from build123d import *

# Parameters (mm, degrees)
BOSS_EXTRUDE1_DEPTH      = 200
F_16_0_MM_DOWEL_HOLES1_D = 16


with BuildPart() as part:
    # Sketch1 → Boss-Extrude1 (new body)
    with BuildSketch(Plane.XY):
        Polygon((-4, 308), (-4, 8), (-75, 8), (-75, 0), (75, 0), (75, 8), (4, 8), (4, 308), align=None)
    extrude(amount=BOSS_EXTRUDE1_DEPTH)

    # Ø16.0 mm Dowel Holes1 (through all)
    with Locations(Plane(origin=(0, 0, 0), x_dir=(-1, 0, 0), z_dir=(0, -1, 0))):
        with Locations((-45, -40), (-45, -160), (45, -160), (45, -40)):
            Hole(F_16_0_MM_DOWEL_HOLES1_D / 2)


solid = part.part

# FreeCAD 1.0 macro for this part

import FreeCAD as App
import Part
import Sketcher

V = App.Vector
Q = App.Units.Quantity

doc = App.newDocument("Part")
body = doc.addObject("PartDesign::Body", "Body")

sketch1 = body.newObject("Sketcher::SketchObject", "Sketch")
sketch1.AttachmentSupport = (doc.getObject("XY_Plane"), [""])
sketch1.MapMode = "FlatFace"
sketch1.addGeometry([
    Part.LineSegment(V(-4, 308, 0), V(-4, 8, 0)),
    Part.LineSegment(V(-4, 8, 0), V(-75, 8, 0)),
    Part.LineSegment(V(-75, 8, 0), V(-75, 0, 0)),
    Part.LineSegment(V(-75, 0, 0), V(75, 0, 0)),
    Part.LineSegment(V(75, 0, 0), V(75, 8, 0)),
    Part.LineSegment(V(75, 8, 0), V(4, 8, 0)),
    Part.LineSegment(V(4, 8, 0), V(4, 308, 0)),
    Part.LineSegment(V(4, 308, 0), V(-4, 308, 0)),
], False)
sketch1.addConstraint([
    Sketcher.Constraint("Coincident", 0, 2, 1, 1),
    Sketcher.Constraint("Coincident", 1, 2, 2, 1),
    Sketcher.Constraint("Coincident", 2, 2, 3, 1),
    Sketcher.Constraint("Coincident", 3, 2, 4, 1),
    Sketcher.Constraint("Coincident", 4, 2, 5, 1),
    Sketcher.Constraint("Coincident", 5, 2, 6, 1),
    Sketcher.Constraint("Coincident", 6, 2, 7, 1),
    Sketcher.Constraint("Coincident", 7, 2, 0, 1),
    Sketcher.Constraint("Vertical", 0),
    Sketcher.Constraint("Horizontal", 1),
    Sketcher.Constraint("Vertical", 2),
    Sketcher.Constraint("Horizontal", 3),
    Sketcher.Constraint("Vertical", 4),
    Sketcher.Constraint("Horizontal", 5),
    Sketcher.Constraint("Vertical", 6),
    Sketcher.Constraint("Horizontal", 7),
    Sketcher.Constraint("Symmetric", 2, 2, 3, 2, -1, 1),
    Sketcher.Constraint("Symmetric", 0, 2, 5, 2, -2),
    Sketcher.Constraint("Equal", 7, 2),
    Sketcher.Constraint("DistanceX", 1, 2, 1, 1, Q("71 mm")),
    Sketcher.Constraint("DistanceX", 3, 1, 3, 2, Q("150 mm")),
    Sketcher.Constraint("DistanceY", 0, 2, 0, 1, Q("300 mm")),
])
pad1 = body.newObject("PartDesign::Pad", "Pad")
pad1.Profile = sketch1
pad1.Length = 200

sketch2 = body.newObject("Sketcher::SketchObject", "Sketch001")
sketch2.AttachmentSupport = (doc.getObject("XZ_Plane"), [""])
sketch2.MapMode = "FlatFace"
sketch2.addGeometry([
    Part.Circle(V(45, 40, 0), V(0, 0, 1), 8),
    Part.Circle(V(45, 160, 0), V(0, 0, 1), 8),
    Part.Circle(V(-45, 160, 0), V(0, 0, 1), 8),
    Part.Circle(V(-45, 40, 0), V(0, 0, 1), 8),
], False)
sketch2.addConstraint([
    Sketcher.Constraint("Equal", 0, 1),
    Sketcher.Constraint("Equal", 1, 2),
    Sketcher.Constraint("Equal", 2, 3),
    Sketcher.Constraint("Symmetric", 1, 3, 2, 3, -2),
    Sketcher.Constraint("Symmetric", 0, 3, 3, 3, -2),
    Sketcher.Constraint("Vertical", 0, 3, 1, 3),
    Sketcher.Constraint("Diameter", 0, Q("16 mm")),
    Sketcher.Constraint("DistanceX", -1, 1, 0, 3, Q("45 mm")),
    Sketcher.Constraint("DistanceY", -1, 1, 0, 3, Q("40 mm")),
    Sketcher.Constraint("DistanceY", -1, 1, 1, 3, Q("160 mm")),
])
doc.recompute()
hole = body.newObject("PartDesign::Hole", "Hole")
hole.Profile = sketch2
hole.ThreadType = "None"
hole.Diameter = 16
hole.DepthType = "ThroughAll"

doc.recompute()
